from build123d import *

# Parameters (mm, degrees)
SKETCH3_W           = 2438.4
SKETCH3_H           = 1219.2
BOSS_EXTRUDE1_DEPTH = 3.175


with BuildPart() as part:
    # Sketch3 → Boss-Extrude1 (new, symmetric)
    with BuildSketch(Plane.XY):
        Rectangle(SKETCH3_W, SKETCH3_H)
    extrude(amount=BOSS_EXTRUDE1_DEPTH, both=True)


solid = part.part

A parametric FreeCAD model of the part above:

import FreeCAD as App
import Part
import Sketcher
from FreeCAD import Vector
Q = App.Units.Quantity


def add_polygon(sketch, points):
    """Adds a closed chain of lines whose ends are joined by coincident constraints."""
    first, n = sketch.GeometryCount, len(points)
    for a, b in zip(points, points[1:] + points[:1]):
        sketch.addGeometry(Part.LineSegment(App.Vector(*a, 0), App.Vector(*b, 0)), False)
    for i in range(n):
        sketch.addConstraint(Sketcher.Constraint("Coincident", first + i, 2, first + (i + 1) % n, 1))

doc = App.newDocument("Part")
body = doc.addObject("PartDesign::Body", "Body")

# Sketch on XY plane
sketch1 = body.newObject("Sketcher::SketchObject", "Sketch")
sketch1.AttachmentSupport = (doc.getObject("XY_Plane"), [""])
sketch1.MapMode = "FlatFace"
add_polygon(sketch1, [(-1219, 610), (-1219, -610), (1219, -610), (1219, 610)])  # lines 0-3
sketch1.addConstraint(Sketcher.Constraint("Vertical", 0))
sketch1.addConstraint(Sketcher.Constraint("Horizontal", 1))
sketch1.addConstraint(Sketcher.Constraint("Vertical", 2))
sketch1.addConstraint(Sketcher.Constraint("Horizontal", 3))
sketch1.addConstraint(Sketcher.Constraint("Symmetric", 0, 2, 2, 2, -1, 1))
sketch1.addConstraint(Sketcher.Constraint("DistanceX", 1, 1, 1, 2, Q("96 in")))
sketch1.addConstraint(Sketcher.Constraint("DistanceY", 0, 2, 0, 1, Q("48 in")))
pad1 = body.newObject("PartDesign::Pad", "Pad")
pad1.Profile = sketch1
pad1.Length = Q("0.25 in")
pad1.Midplane = True

doc.recompute()
